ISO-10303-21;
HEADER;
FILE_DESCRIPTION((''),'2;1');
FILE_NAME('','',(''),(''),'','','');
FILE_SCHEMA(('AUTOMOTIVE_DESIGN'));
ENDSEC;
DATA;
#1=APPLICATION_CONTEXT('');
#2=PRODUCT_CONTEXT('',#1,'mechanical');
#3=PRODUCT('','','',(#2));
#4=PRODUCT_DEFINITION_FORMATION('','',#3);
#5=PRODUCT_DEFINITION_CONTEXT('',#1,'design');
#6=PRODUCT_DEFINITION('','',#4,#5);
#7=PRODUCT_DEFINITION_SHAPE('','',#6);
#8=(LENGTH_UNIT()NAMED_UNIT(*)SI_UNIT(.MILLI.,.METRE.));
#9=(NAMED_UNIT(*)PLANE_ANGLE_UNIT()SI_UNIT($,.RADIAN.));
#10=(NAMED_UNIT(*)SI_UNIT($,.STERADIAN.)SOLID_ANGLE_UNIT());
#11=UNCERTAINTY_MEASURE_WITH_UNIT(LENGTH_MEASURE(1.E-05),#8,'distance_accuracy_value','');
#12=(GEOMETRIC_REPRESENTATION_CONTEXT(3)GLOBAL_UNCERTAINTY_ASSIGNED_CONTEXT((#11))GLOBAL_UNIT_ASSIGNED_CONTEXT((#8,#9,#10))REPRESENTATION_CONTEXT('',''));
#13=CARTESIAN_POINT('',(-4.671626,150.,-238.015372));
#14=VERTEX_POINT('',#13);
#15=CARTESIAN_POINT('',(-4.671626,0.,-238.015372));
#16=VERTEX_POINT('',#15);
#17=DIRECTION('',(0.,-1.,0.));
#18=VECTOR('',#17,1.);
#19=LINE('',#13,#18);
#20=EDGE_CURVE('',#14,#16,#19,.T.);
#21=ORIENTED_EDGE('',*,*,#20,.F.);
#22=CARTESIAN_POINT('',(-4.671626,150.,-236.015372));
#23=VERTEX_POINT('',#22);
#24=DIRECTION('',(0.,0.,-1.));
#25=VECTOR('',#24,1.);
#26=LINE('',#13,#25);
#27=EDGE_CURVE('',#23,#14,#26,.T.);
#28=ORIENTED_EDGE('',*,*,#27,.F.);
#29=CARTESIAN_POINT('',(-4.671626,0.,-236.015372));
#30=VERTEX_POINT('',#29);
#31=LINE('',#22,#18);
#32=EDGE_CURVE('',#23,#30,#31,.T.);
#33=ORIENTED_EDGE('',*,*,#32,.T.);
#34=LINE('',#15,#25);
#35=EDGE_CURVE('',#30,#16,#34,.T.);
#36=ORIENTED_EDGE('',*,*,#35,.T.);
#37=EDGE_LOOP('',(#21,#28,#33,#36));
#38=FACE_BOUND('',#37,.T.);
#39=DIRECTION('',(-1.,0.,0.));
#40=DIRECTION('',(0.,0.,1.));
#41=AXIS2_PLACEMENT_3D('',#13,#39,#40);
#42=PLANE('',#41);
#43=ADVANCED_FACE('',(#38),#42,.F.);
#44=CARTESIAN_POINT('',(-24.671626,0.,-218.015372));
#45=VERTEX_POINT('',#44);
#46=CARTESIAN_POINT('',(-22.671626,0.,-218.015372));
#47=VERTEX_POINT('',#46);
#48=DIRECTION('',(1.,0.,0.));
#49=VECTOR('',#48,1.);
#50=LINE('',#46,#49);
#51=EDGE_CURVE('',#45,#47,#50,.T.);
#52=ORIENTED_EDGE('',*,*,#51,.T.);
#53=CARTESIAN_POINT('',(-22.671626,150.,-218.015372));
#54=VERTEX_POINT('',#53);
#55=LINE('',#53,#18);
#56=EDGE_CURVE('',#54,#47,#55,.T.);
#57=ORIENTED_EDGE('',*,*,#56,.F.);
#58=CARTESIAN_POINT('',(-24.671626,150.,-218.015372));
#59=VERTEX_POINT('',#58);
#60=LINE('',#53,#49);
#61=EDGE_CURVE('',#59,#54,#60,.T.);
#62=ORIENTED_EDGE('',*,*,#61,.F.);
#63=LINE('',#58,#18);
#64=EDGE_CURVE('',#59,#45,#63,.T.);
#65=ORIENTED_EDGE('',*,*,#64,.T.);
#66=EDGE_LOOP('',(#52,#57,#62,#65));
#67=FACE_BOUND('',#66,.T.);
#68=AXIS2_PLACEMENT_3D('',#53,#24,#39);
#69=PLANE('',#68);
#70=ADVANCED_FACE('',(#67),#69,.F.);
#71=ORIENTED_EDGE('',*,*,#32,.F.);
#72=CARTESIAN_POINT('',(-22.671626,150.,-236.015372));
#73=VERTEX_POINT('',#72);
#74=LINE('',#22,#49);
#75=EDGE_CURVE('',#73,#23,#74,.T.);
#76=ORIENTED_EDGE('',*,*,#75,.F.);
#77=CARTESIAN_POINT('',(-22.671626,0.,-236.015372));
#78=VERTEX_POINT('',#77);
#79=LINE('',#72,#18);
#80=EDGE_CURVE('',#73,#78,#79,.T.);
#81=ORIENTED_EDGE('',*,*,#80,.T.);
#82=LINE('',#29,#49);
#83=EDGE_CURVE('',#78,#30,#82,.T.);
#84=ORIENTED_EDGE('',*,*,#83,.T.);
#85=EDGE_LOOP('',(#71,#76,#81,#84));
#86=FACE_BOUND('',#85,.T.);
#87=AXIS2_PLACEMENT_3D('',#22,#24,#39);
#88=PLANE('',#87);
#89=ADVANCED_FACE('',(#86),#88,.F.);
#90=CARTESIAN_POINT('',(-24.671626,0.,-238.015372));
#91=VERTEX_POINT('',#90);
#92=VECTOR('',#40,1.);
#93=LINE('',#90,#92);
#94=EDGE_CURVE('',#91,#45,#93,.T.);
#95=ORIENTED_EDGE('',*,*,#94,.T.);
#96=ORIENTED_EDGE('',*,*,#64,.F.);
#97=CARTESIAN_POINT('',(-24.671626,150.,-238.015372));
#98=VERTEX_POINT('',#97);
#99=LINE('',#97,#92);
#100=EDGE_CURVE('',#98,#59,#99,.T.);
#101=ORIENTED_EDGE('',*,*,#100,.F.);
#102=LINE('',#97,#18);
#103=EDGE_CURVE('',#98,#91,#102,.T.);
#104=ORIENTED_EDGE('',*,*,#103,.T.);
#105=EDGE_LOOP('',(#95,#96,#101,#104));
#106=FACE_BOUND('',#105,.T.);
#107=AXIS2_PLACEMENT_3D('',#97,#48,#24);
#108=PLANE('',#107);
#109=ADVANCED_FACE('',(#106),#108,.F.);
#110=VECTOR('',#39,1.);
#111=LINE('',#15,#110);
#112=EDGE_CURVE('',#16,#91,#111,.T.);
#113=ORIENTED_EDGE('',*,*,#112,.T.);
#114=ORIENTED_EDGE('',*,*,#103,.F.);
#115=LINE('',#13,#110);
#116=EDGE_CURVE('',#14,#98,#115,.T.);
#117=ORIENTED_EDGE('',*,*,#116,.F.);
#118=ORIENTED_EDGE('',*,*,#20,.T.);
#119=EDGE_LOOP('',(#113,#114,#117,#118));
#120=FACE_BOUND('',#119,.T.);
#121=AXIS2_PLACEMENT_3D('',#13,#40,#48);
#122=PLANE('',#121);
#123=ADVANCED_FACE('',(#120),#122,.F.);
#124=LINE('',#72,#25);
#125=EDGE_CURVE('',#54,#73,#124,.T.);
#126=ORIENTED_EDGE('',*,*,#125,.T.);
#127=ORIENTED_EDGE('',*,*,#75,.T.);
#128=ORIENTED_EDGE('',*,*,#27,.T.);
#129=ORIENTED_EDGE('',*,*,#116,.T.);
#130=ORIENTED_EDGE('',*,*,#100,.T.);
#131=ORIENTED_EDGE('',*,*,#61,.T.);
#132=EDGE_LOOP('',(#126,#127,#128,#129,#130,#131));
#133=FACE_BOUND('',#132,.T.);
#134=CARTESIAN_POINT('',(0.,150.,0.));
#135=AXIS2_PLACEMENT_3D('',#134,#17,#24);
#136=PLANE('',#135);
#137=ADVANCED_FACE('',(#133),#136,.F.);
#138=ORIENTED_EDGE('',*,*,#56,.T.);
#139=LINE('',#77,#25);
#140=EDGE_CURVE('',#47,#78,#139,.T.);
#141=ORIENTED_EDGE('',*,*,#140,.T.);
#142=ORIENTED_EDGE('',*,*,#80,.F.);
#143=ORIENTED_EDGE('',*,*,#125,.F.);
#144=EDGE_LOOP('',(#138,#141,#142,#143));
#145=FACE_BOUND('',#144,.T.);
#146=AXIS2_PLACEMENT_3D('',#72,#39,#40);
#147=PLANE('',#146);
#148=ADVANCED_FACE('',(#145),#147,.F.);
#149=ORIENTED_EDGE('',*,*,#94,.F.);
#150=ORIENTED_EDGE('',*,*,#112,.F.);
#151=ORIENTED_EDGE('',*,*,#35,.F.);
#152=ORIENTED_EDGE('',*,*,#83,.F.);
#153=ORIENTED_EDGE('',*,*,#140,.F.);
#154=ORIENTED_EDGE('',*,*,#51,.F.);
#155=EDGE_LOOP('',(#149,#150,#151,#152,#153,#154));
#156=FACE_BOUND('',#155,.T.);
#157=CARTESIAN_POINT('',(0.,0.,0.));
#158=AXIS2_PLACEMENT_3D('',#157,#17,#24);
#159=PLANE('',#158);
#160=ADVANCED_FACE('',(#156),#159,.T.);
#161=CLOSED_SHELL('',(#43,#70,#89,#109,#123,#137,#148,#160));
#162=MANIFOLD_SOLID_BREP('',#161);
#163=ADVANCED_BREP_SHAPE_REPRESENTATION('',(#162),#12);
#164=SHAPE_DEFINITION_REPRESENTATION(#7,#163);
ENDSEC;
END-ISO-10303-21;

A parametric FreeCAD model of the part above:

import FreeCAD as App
import Part
import Sketcher
from FreeCAD import Vector
Q = App.Units.Quantity

doc = App.newDocument("Part")
params = doc.addObject("Spreadsheet::Sheet", "Params")
for row, (alias, value) in enumerate([
    ("sketch1_width", "20 mm"),
    ("sketch1_width2", "2 mm"),
    ("pad1_length", "150 mm"),
], start=1):
    params.set(f"A{row}", alias)
    params.set(f"B{row}", "=" + value)
    params.setAlias(f"B{row}", alias)

body = doc.addObject("PartDesign::Body", "Body")

sketch1 = doc.addObject("Sketcher::SketchObject", "Sketch")
body.addObject(sketch1)
sketch1.AttachmentSupport = (doc.XZ_Plane, [""])
sketch1.MapMode = "FlatFace"
sketch1.addGeometry([
    Part.LineSegment(Vector(-4.7, -238, 0), Vector(-24.7, -238, 0)),
    Part.LineSegment(Vector(-24.7, -238, 0), Vector(-24.7, -218, 0)),
    Part.LineSegment(Vector(-24.7, -218, 0), Vector(-22.7, -218, 0)),
    Part.LineSegment(Vector(-22.7, -218, 0), Vector(-22.7, -236, 0)),
    Part.LineSegment(Vector(-22.7, -236, 0), Vector(-4.7, -236, 0)),
    Part.LineSegment(Vector(-4.7, -236, 0), Vector(-4.7, -238, 0)),
], False)
sketch1.addConstraint([
    Sketcher.Constraint("Coincident", 0, 2, 1, 1),
    Sketcher.Constraint("Coincident", 1, 2, 2, 1),
    Sketcher.Constraint("Coincident", 2, 2, 3, 1),
    Sketcher.Constraint("Coincident", 3, 2, 4, 1),
    Sketcher.Constraint("Coincident", 4, 2, 5, 1),
    Sketcher.Constraint("Coincident", 5, 2, 0, 1),
    Sketcher.Constraint("Horizontal", 0),
    Sketcher.Constraint("Vertical", 1),
    Sketcher.Constraint("Horizontal", 2),
    Sketcher.Constraint("Vertical", 3),
    Sketcher.Constraint("Horizontal", 4),
    Sketcher.Constraint("Vertical", 5),
    Sketcher.Constraint("Equal", 0, 1),
    Sketcher.Constraint("Equal", 4, 3),
    Sketcher.Constraint("DistanceX", 0, 2, 0, 1, Q("20 mm")),
    Sketcher.Constraint("DistanceX", 2, 1, 2, 2, Q("2 mm")),
    Sketcher.Constraint("DistanceX", 0, 2, -1, 1, Q("24.671626 mm")),
    Sketcher.Constraint("DistanceY", 0, 2, -1, 1, Q("238.015372 mm")),
])
sketch1.setExpression("Constraints[14]", "Params.sketch1_width")
sketch1.setExpression("Constraints[15]", "Params.sketch1_width2")
pad1 = doc.addObject("PartDesign::Pad", "Pad")
body.addObject(pad1)
pad1.Profile = sketch1
pad1.setExpression("Length", "Params.pad1_length")
pad1.Reversed = True

doc.recompute()
